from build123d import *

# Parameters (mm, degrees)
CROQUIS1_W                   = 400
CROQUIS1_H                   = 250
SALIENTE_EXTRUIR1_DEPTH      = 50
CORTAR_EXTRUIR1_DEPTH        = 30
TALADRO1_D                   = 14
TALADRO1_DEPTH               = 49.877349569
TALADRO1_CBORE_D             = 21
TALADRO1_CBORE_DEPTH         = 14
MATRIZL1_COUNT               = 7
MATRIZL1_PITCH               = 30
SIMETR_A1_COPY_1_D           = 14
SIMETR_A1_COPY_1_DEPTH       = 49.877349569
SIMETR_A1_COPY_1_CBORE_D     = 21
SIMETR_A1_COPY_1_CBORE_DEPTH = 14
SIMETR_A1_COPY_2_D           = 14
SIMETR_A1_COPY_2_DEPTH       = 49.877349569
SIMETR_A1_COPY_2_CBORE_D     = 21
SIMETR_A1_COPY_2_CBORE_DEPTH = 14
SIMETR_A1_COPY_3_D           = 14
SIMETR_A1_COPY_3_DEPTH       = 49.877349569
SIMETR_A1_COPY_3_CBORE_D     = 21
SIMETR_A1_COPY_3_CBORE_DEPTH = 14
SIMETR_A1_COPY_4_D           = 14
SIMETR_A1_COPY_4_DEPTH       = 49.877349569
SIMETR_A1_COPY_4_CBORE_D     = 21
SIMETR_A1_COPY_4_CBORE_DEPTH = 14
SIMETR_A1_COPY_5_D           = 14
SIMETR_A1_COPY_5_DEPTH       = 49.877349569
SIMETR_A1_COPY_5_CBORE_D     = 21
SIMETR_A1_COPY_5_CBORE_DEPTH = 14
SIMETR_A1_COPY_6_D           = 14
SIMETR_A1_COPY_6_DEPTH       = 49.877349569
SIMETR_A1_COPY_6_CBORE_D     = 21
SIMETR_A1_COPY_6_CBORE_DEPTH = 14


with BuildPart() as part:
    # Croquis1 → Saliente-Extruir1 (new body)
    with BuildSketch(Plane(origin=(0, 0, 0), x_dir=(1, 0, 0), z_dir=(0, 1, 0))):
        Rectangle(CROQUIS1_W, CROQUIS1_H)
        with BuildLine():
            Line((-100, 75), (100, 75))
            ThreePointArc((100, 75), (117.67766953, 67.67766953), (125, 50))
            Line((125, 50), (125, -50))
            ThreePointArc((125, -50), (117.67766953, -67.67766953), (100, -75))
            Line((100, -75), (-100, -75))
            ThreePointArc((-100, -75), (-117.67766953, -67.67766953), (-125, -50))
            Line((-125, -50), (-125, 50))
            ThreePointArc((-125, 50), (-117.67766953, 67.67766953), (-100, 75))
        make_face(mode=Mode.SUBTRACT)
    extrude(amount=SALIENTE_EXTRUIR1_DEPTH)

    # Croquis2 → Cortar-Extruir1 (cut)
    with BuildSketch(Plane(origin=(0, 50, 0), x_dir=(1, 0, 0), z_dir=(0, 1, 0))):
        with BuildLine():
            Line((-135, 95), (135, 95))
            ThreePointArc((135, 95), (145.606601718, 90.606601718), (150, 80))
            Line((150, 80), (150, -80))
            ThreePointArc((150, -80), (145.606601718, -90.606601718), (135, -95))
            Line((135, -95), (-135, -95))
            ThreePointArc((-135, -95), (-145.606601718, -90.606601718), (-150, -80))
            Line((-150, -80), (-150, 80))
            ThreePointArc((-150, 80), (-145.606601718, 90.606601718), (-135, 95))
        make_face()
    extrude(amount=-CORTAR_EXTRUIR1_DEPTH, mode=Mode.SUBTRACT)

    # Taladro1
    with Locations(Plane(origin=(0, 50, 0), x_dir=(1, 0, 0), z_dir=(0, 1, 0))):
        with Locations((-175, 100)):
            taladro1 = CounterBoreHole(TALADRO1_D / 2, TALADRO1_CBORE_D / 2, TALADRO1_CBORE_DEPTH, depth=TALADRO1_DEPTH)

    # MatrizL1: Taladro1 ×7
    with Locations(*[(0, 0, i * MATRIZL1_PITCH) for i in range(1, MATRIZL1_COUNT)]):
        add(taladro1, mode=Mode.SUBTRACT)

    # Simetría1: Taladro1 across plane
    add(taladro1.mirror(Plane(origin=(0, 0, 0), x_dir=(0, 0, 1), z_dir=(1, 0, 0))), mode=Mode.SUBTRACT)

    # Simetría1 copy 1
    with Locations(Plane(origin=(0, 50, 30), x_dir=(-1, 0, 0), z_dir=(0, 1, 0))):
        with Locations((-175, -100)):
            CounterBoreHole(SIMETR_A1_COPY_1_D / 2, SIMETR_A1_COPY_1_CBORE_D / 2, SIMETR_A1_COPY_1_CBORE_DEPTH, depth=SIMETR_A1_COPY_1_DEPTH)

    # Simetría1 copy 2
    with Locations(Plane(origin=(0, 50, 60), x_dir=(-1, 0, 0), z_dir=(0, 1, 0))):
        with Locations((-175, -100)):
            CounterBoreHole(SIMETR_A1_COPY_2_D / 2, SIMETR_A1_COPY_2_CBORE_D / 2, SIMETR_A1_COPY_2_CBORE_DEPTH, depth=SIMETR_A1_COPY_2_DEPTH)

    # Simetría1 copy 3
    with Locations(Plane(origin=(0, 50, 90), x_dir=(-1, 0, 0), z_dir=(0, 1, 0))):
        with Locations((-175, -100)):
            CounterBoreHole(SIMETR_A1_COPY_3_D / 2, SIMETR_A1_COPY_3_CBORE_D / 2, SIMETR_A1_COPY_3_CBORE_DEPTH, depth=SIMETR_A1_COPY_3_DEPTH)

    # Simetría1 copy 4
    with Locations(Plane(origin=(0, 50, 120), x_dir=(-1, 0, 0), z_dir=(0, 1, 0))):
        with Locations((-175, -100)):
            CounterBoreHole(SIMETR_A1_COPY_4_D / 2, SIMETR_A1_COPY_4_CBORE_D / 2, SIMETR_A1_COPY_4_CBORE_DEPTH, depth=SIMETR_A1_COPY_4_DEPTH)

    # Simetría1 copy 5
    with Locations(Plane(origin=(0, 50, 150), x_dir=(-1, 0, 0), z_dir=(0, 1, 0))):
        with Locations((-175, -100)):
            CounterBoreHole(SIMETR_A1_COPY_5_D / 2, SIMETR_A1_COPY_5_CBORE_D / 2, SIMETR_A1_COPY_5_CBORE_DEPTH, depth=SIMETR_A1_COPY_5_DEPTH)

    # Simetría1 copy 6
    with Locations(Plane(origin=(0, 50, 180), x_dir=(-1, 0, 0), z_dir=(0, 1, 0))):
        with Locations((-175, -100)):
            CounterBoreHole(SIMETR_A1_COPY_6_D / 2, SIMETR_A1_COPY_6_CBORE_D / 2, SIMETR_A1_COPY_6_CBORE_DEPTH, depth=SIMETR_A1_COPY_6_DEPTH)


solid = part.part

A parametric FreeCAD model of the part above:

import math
import FreeCAD as App
import Part
import Sketcher

V = App.Vector


def add_polygon(sketch, points):
    """Adds a closed chain of lines whose ends are joined by coincident constraints."""
    first, n = sketch.GeometryCount, len(points)
    for a, b in zip(points, points[1:] + points[:1]):
        sketch.addGeometry(Part.LineSegment(App.Vector(*a, 0), App.Vector(*b, 0)), False)
    for i in range(n):
        sketch.addConstraint(Sketcher.Constraint("Coincident", first + i, 2, first + (i + 1) % n, 1))

doc = App.newDocument("Part")
body = doc.addObject("PartDesign::Body", "Body")

# Sketch on XZ plane
sketch1 = body.newObject("Sketcher::SketchObject", "Sketch")
sketch1.AttachmentSupport = (doc.getObject("XZ_Plane"), [""])
sketch1.MapMode = "FlatFace"
add_polygon(sketch1, [(-200, -125), (-200, 125), (200, 125), (200, -125)])  # lines 0-3
sketch1.addGeometry(Part.ArcOfCircle(Part.Circle(V(-100, -50, 0), V(0, 0, 1), 25), math.radians(180), math.radians(270)), False)  # 4
sketch1.addGeometry(Part.LineSegment(V(-100, -75, 0), V(100, -75, 0)), False)  # 5
sketch1.addGeometry(Part.ArcOfCircle(Part.Circle(V(100, -50, 0), V(0, 0, 1), 25), math.radians(-90), math.radians(0)), False)  # 6
sketch1.addGeometry(Part.LineSegment(V(125, -50, 0), V(125, 50, 0)), False)  # 7
sketch1.addGeometry(Part.ArcOfCircle(Part.Circle(V(100, 50, 0), V(0, 0, 1), 25), math.radians(0), math.radians(90)), False)  # 8
sketch1.addGeometry(Part.LineSegment(V(100, 75, 0), V(-100, 75, 0)), False)  # 9
sketch1.addGeometry(Part.ArcOfCircle(Part.Circle(V(-100, 50, 0), V(0, 0, 1), 25), math.radians(90), math.radians(180)), False)  # 10
sketch1.addGeometry(Part.LineSegment(V(-125, 50, 0), V(-125, -50, 0)), False)  # 11
sketch1.addConstraint(Sketcher.Constraint("Tangent", 4, 2, 5, 1))
sketch1.addConstraint(Sketcher.Constraint("Tangent", 5, 2, 6, 1))
sketch1.addConstraint(Sketcher.Constraint("Tangent", 6, 2, 7, 1))
sketch1.addConstraint(Sketcher.Constraint("Tangent", 7, 2, 8, 1))
sketch1.addConstraint(Sketcher.Constraint("Tangent", 8, 2, 9, 1))
sketch1.addConstraint(Sketcher.Constraint("Tangent", 9, 2, 10, 1))
sketch1.addConstraint(Sketcher.Constraint("Tangent", 10, 2, 11, 1))
sketch1.addConstraint(Sketcher.Constraint("Tangent", 11, 2, 4, 1))
sketch1.addConstraint(Sketcher.Constraint("Vertical", 0))
sketch1.addConstraint(Sketcher.Constraint("Horizontal", 1))
sketch1.addConstraint(Sketcher.Constraint("Vertical", 2))
sketch1.addConstraint(Sketcher.Constraint("Horizontal", 3))
sketch1.addConstraint(Sketcher.Constraint("Horizontal", 5))
sketch1.addConstraint(Sketcher.Constraint("Vertical", 7))
sketch1.addConstraint(Sketcher.Constraint("Horizontal", 9))
sketch1.addConstraint(Sketcher.Constraint("Vertical", 11))
sketch1.addConstraint(Sketcher.Constraint("Equal", 4, 6))
sketch1.addConstraint(Sketcher.Constraint("Equal", 6, 8))
sketch1.addConstraint(Sketcher.Constraint("Equal", 8, 10))
sketch1.addConstraint(Sketcher.Constraint("Symmetric", 4, 3, 8, 3, -1, 1))
sketch1.addConstraint(Sketcher.Constraint("Symmetric", 0, 2, 2, 2, -1, 1))
sketch1.addConstraint(Sketcher.Constraint("Radius", 4, 25.0))
sketch1.addConstraint(Sketcher.Constraint("DistanceX", 1, 1, 1, 2, 400.0))
sketch1.addConstraint(Sketcher.Constraint("DistanceX", 5, 1, 5, 2, 200.0))
sketch1.addConstraint(Sketcher.Constraint("DistanceY", 0, 1, 0, 2, 250.0))
sketch1.addConstraint(Sketcher.Constraint("DistanceY", 7, 1, 7, 2, 100.0))
pad1 = body.newObject("PartDesign::Pad", "Pad")
pad1.Profile = sketch1
pad1.Length = 50
pad1.Reversed = True

# Sketch on XZ plane
sketch2 = body.newObject("Sketcher::SketchObject", "Sketch001")
sketch2.AttachmentSupport = (doc.getObject("XZ_Plane"), [""])
sketch2.MapMode = "FlatFace"
sketch2.AttachmentOffset = App.Placement(V(0, 0, -50), App.Rotation())
sketch2.addGeometry(Part.LineSegment(V(135, -95, 0), V(-135, -95, 0)), False)
sketch2.addGeometry(Part.ArcOfCircle(Part.Circle(V(-135, -80, 0), V(0, 0, 1), 15), math.radians(180), math.radians(270)), False)
sketch2.addGeometry(Part.LineSegment(V(-150, -80, 0), V(-150, 80, 0)), False)
sketch2.addGeometry(Part.ArcOfCircle(Part.Circle(V(-135, 80, 0), V(0, 0, 1), 15), math.radians(90), math.radians(180)), False)
sketch2.addGeometry(Part.LineSegment(V(-135, 95, 0), V(135, 95, 0)), False)
sketch2.addGeometry(Part.ArcOfCircle(Part.Circle(V(135, 80, 0), V(0, 0, 1), 15), math.radians(0), math.radians(90)), False)
sketch2.addGeometry(Part.LineSegment(V(150, 80, 0), V(150, -80, 0)), False)
sketch2.addGeometry(Part.ArcOfCircle(Part.Circle(V(135, -80, 0), V(0, 0, 1), 15), math.radians(-90), math.radians(0)), False)
sketch2.addConstraint(Sketcher.Constraint("Tangent", 0, 2, 1, 2))
sketch2.addConstraint(Sketcher.Constraint("Tangent", 1, 1, 2, 1))
sketch2.addConstraint(Sketcher.Constraint("Tangent", 2, 2, 3, 2))
sketch2.addConstraint(Sketcher.Constraint("Tangent", 3, 1, 4, 1))
sketch2.addConstraint(Sketcher.Constraint("Tangent", 4, 2, 5, 2))
sketch2.addConstraint(Sketcher.Constraint("Tangent", 5, 1, 6, 1))
sketch2.addConstraint(Sketcher.Constraint("Tangent", 6, 2, 7, 2))
sketch2.addConstraint(Sketcher.Constraint("Tangent", 7, 1, 0, 1))
sketch2.addConstraint(Sketcher.Constraint("Horizontal", 0))
sketch2.addConstraint(Sketcher.Constraint("Vertical", 2))
sketch2.addConstraint(Sketcher.Constraint("Horizontal", 4))
sketch2.addConstraint(Sketcher.Constraint("Vertical", 6))
sketch2.addConstraint(Sketcher.Constraint("Equal", 1, 3))
sketch2.addConstraint(Sketcher.Constraint("Equal", 3, 5))
sketch2.addConstraint(Sketcher.Constraint("Equal", 5, 7))
sketch2.addConstraint(Sketcher.Constraint("Symmetric", 1, 3, 5, 3, -1, 1))
sketch2.addConstraint(Sketcher.Constraint("Radius", 1, 15.0))
sketch2.addConstraint(Sketcher.Constraint("DistanceX", 0, 2, 0, 1, 270.0))
sketch2.addConstraint(Sketcher.Constraint("DistanceY", 2, 1, 2, 2, 160.0))
pocket1 = body.newObject("PartDesign::Pocket", "Pocket")
pocket1.Profile = sketch2
pocket1.Length = 30
pocket1.Reversed = True

# Sketch on XZ plane
sketch3 = body.newObject("Sketcher::SketchObject", "Sketch002")
sketch3.AttachmentSupport = (doc.getObject("XZ_Plane"), [""])
sketch3.MapMode = "FlatFace"
sketch3.AttachmentOffset = App.Placement(V(0, 0, -50), App.Rotation())
sketch3.addGeometry(Part.Circle(V(-175, -100, 0), V(0, 0, 1), 7), False)
sketch3.addConstraint(Sketcher.Constraint("Diameter", 0, 14.0))
sketch3.addConstraint(Sketcher.Constraint("DistanceX", 0, 3, -1, 1, 175.0))
sketch3.addConstraint(Sketcher.Constraint("DistanceY", 0, 3, -1, 1, 100.0))
doc.recompute()
hole = body.newObject("PartDesign::Hole", "Hole")
hole.Profile = sketch3
hole.ThreadType = "None"
hole.Diameter = 14
hole.DepthType = "Dimension"
hole.Depth = 49.87735
hole.DrillPoint = "Flat"
hole.HoleCutType = "Counterbore"
hole.HoleCutDiameter = 21
hole.HoleCutDepth = 14
hole.Reversed = True
doc.recompute()

linearpattern = body.newObject("PartDesign::LinearPattern", "LinearPattern")
linearpattern.Originals = [hole]
linearpattern.Direction = (doc.getObject("Z_Axis"), [""])
linearpattern.Mode = "offset"
linearpattern.Offset = 30
linearpattern.Occurrences = 7
body.Tip = linearpattern
doc.recompute()

mirrored = body.newObject("PartDesign::Mirrored", "Mirrored")
mirrored.Originals = [hole]
mirrored.MirrorPlane = (doc.getObject("YZ_Plane"), [""])
body.Tip = mirrored

# Sketch on XZ plane
sketch4 = body.newObject("Sketcher::SketchObject", "Sketch003")
sketch4.AttachmentSupport = (doc.getObject("XZ_Plane"), [""])
sketch4.MapMode = "FlatFace"
sketch4.AttachmentOffset = App.Placement(V(0, 0, -50), App.Rotation())
sketch4.addGeometry(Part.Circle(V(175, -70, 0), V(0, 0, 1), 7), False)
sketch4.addConstraint(Sketcher.Constraint("Diameter", 0, 14.0))
sketch4.addConstraint(Sketcher.Constraint("DistanceX", -1, 1, 0, 3, 175.0))
sketch4.addConstraint(Sketcher.Constraint("DistanceY", 0, 3, -1, 1, 70.0))
doc.recompute()
hole2 = body.newObject("PartDesign::Hole", "Hole001")
hole2.Profile = sketch4
hole2.ThreadType = "None"
hole2.Diameter = 14
hole2.DepthType = "Dimension"
hole2.Depth = 49.87735
hole2.DrillPoint = "Flat"
hole2.HoleCutType = "Counterbore"
hole2.HoleCutDiameter = 21
hole2.HoleCutDepth = 14
hole2.Reversed = True

# Sketch on XZ plane
sketch5 = body.newObject("Sketcher::SketchObject", "Sketch004")
sketch5.AttachmentSupport = (doc.getObject("XZ_Plane"), [""])
sketch5.MapMode = "FlatFace"
sketch5.AttachmentOffset = App.Placement(V(0, 0, -50), App.Rotation())
sketch5.addGeometry(Part.Circle(V(175, -40, 0), V(0, 0, 1), 7), False)
sketch5.addConstraint(Sketcher.Constraint("Diameter", 0, 14.0))
sketch5.addConstraint(Sketcher.Constraint("DistanceX", -1, 1, 0, 3, 175.0))
sketch5.addConstraint(Sketcher.Constraint("DistanceY", 0, 3, -1, 1, 40.0))
doc.recompute()
hole3 = body.newObject("PartDesign::Hole", "Hole002")
hole3.Profile = sketch5
hole3.ThreadType = "None"
hole3.Diameter = 14
hole3.DepthType = "Dimension"
hole3.Depth = 49.87735
hole3.DrillPoint = "Flat"
hole3.HoleCutType = "Counterbore"
hole3.HoleCutDiameter = 21
hole3.HoleCutDepth = 14
hole3.Reversed = True

# Sketch on XZ plane
sketch6 = body.newObject("Sketcher::SketchObject", "Sketch005")
sketch6.AttachmentSupport = (doc.getObject("XZ_Plane"), [""])
sketch6.MapMode = "FlatFace"
sketch6.AttachmentOffset = App.Placement(V(0, 0, -50), App.Rotation())
sketch6.addGeometry(Part.Circle(V(175, -10, 0), V(0, 0, 1), 7), False)
sketch6.addConstraint(Sketcher.Constraint("Diameter", 0, 14.0))
sketch6.addConstraint(Sketcher.Constraint("DistanceX", -1, 1, 0, 3, 175.0))
sketch6.addConstraint(Sketcher.Constraint("DistanceY", 0, 3, -1, 1, 10.0))
doc.recompute()
hole4 = body.newObject("PartDesign::Hole", "Hole003")
hole4.Profile = sketch6
hole4.ThreadType = "None"
hole4.Diameter = 14
hole4.DepthType = "Dimension"
hole4.Depth = 49.87735
hole4.DrillPoint = "Flat"
hole4.HoleCutType = "Counterbore"
hole4.HoleCutDiameter = 21
hole4.HoleCutDepth = 14
hole4.Reversed = True

# Sketch on XZ plane
sketch7 = body.newObject("Sketcher::SketchObject", "Sketch006")
sketch7.AttachmentSupport = (doc.getObject("XZ_Plane"), [""])
sketch7.MapMode = "FlatFace"
sketch7.AttachmentOffset = App.Placement(V(0, 0, -50), App.Rotation())
sketch7.addGeometry(Part.Circle(V(175, 20, 0), V(0, 0, 1), 7), False)
sketch7.addConstraint(Sketcher.Constraint("Diameter", 0, 14.0))
sketch7.addConstraint(Sketcher.Constraint("DistanceX", -1, 1, 0, 3, 175.0))
sketch7.addConstraint(Sketcher.Constraint("DistanceY", -1, 1, 0, 3, 20.0))
doc.recompute()
hole5 = body.newObject("PartDesign::Hole", "Hole004")
hole5.Profile = sketch7
hole5.ThreadType = "None"
hole5.Diameter = 14
hole5.DepthType = "Dimension"
hole5.Depth = 49.87735
hole5.DrillPoint = "Flat"
hole5.HoleCutType = "Counterbore"
hole5.HoleCutDiameter = 21
hole5.HoleCutDepth = 14
hole5.Reversed = True

# Sketch on XZ plane
sketch8 = body.newObject("Sketcher::SketchObject", "Sketch007")
sketch8.AttachmentSupport = (doc.getObject("XZ_Plane"), [""])
sketch8.MapMode = "FlatFace"
sketch8.AttachmentOffset = App.Placement(V(0, 0, -50), App.Rotation())
sketch8.addGeometry(Part.Circle(V(175, 50, 0), V(0, 0, 1), 7), False)
sketch8.addConstraint(Sketcher.Constraint("Diameter", 0, 14.0))
sketch8.addConstraint(Sketcher.Constraint("DistanceX", -1, 1, 0, 3, 175.0))
sketch8.addConstraint(Sketcher.Constraint("DistanceY", -1, 1, 0, 3, 50.0))
doc.recompute()
hole6 = body.newObject("PartDesign::Hole", "Hole005")
hole6.Profile = sketch8
hole6.ThreadType = "None"
hole6.Diameter = 14
hole6.DepthType = "Dimension"
hole6.Depth = 49.87735
hole6.DrillPoint = "Flat"
hole6.HoleCutType = "Counterbore"
hole6.HoleCutDiameter = 21
hole6.HoleCutDepth = 14
hole6.Reversed = True

# Sketch on XZ plane
sketch9 = body.newObject("Sketcher::SketchObject", "Sketch008")
sketch9.AttachmentSupport = (doc.getObject("XZ_Plane"), [""])
sketch9.MapMode = "FlatFace"
sketch9.AttachmentOffset = App.Placement(V(0, 0, -50), App.Rotation())
sketch9.addGeometry(Part.Circle(V(175, 80, 0), V(0, 0, 1), 7), False)
sketch9.addConstraint(Sketcher.Constraint("Diameter", 0, 14.0))
sketch9.addConstraint(Sketcher.Constraint("DistanceX", -1, 1, 0, 3, 175.0))
sketch9.addConstraint(Sketcher.Constraint("DistanceY", -1, 1, 0, 3, 80.0))
doc.recompute()
hole7 = body.newObject("PartDesign::Hole", "Hole006")
hole7.Profile = sketch9
hole7.ThreadType = "None"
hole7.Diameter = 14
hole7.DepthType = "Dimension"
hole7.Depth = 49.87735
hole7.DrillPoint = "Flat"
hole7.HoleCutType = "Counterbore"
hole7.HoleCutDiameter = 21
hole7.HoleCutDepth = 14
hole7.Reversed = True

doc.recompute()
